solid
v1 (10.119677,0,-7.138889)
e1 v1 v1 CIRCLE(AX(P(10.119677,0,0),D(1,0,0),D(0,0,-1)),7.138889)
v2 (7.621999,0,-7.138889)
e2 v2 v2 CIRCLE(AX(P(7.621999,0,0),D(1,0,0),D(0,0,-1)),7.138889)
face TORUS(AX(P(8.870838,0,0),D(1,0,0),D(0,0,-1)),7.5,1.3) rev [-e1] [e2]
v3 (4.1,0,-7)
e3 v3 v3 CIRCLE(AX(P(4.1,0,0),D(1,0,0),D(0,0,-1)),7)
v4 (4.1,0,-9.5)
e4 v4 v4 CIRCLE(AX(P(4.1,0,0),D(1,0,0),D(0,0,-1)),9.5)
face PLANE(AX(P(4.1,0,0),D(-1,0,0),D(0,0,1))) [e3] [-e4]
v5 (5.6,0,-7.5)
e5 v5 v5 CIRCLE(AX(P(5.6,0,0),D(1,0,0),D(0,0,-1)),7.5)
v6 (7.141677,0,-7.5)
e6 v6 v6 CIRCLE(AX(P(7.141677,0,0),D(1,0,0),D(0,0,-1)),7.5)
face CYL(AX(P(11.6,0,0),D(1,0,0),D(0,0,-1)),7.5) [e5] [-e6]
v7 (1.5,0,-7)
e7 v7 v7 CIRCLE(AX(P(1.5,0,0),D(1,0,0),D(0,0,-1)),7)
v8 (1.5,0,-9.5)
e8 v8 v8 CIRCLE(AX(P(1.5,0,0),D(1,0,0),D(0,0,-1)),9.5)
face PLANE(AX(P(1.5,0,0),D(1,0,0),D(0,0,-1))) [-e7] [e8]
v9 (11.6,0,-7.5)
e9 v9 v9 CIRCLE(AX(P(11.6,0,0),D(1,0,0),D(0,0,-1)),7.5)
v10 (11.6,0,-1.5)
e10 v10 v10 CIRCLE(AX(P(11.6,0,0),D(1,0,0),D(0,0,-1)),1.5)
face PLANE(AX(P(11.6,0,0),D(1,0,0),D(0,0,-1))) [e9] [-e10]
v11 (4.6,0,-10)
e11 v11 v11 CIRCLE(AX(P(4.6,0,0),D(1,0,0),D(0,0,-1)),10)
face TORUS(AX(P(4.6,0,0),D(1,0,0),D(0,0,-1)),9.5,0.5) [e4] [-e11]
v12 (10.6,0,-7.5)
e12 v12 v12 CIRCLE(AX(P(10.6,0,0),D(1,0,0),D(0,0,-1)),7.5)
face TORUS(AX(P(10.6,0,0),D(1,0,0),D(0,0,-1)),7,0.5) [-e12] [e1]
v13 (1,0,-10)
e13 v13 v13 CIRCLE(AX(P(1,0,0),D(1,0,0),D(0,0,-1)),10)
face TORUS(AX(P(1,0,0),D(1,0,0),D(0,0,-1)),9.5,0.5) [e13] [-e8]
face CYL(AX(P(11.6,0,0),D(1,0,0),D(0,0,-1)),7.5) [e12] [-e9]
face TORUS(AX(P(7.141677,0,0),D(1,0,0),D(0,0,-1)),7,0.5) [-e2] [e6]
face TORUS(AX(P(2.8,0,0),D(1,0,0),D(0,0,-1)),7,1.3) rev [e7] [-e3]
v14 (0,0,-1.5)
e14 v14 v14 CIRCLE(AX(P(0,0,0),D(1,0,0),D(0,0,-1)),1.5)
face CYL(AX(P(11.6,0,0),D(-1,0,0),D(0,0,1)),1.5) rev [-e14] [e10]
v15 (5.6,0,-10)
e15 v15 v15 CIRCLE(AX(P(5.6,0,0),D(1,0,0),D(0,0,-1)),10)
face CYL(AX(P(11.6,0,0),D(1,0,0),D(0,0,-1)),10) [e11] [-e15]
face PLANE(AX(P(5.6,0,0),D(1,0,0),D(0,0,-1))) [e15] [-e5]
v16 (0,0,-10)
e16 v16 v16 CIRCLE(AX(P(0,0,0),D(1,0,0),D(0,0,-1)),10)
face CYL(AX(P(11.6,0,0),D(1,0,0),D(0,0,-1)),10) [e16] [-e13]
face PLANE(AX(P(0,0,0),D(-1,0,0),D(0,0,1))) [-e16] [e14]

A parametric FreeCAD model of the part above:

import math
import FreeCAD as App
import Part
import Sketcher

doc = App.newDocument("Part")
body = doc.addObject("PartDesign::Body", "Body")

# Sketch on XZ plane
sketch1 = body.newObject("Sketcher::SketchObject", "Sketch")
sketch1.AttachmentSupport = (doc.getObject("XZ_Plane"), [""])
sketch1.MapMode = "FlatFace"
sketch1.addGeometry(Part.LineSegment(App.Vector(5.6, 0, 0), App.Vector(0, 0, 0)), False)
sketch1.addGeometry(Part.LineSegment(App.Vector(0, 0, 0), App.Vector(0, 10, 0)), False)
sketch1.addGeometry(Part.LineSegment(App.Vector(0, 10, 0), App.Vector(1, 10, 0)), False)
sketch1.addGeometry(Part.ArcOfCircle(Part.Circle(App.Vector(1, 9.5, 0), App.Vector(0, 0, 1), 0.5), math.radians(0), math.radians(90)), False)
sketch1.addGeometry(Part.LineSegment(App.Vector(1.5, 9.5, 0), App.Vector(1.5, 7, 0)), False)
sketch1.addGeometry(Part.ArcOfCircle(Part.Circle(App.Vector(2.8, 7, 0), App.Vector(0, 0, 1), 1.3), math.radians(180), math.radians(360)), False)
sketch1.addGeometry(Part.LineSegment(App.Vector(4.1, 7, 0), App.Vector(4.1, 9.5, 0)), False)
sketch1.addGeometry(Part.ArcOfCircle(Part.Circle(App.Vector(4.6, 9.5, 0), App.Vector(0, 0, 1), 0.5), math.radians(90), math.radians(180)), False)
sketch1.addGeometry(Part.LineSegment(App.Vector(4.6, 10, 0), App.Vector(5.6, 10, 0)), False)
sketch1.addGeometry(Part.LineSegment(App.Vector(5.6, 10, 0), App.Vector(5.6, 0, 0)), False)
sketch1.addConstraint(Sketcher.Constraint("Coincident", 0, 2, 1, 1))
sketch1.addConstraint(Sketcher.Constraint("Coincident", 1, 2, 2, 1))
sketch1.addConstraint(Sketcher.Constraint("Tangent", 2, 2, 3, 2))
sketch1.addConstraint(Sketcher.Constraint("Tangent", 3, 1, 4, 1))
sketch1.addConstraint(Sketcher.Constraint("Tangent", 4, 2, 5, 1))
sketch1.addConstraint(Sketcher.Constraint("Tangent", 5, 2, 6, 1))
sketch1.addConstraint(Sketcher.Constraint("Tangent", 6, 2, 7, 2))
sketch1.addConstraint(Sketcher.Constraint("Tangent", 7, 1, 8, 1))
sketch1.addConstraint(Sketcher.Constraint("Coincident", 8, 2, 9, 1))
sketch1.addConstraint(Sketcher.Constraint("Coincident", 9, 2, 0, 1))
sketch1.addConstraint(Sketcher.Constraint("Horizontal", 0))
sketch1.addConstraint(Sketcher.Constraint("Vertical", 1))
sketch1.addConstraint(Sketcher.Constraint("Horizontal", 2))
sketch1.addConstraint(Sketcher.Constraint("Vertical", 4))
sketch1.addConstraint(Sketcher.Constraint("Vertical", 6))
sketch1.addConstraint(Sketcher.Constraint("Horizontal", 8))
sketch1.addConstraint(Sketcher.Constraint("Vertical", 9))
sketch1.addConstraint(Sketcher.Constraint("Coincident", 0, 2, -1, 1))
sketch1.addConstraint(Sketcher.Constraint("Equal", 3, 7))
sketch1.addConstraint(Sketcher.Constraint("Horizontal", 3, 3, 7, 3))
sketch1.addConstraint(Sketcher.Constraint("Equal", 2, 8))
sketch1.addConstraint(Sketcher.Constraint("Radius", 3, 0.5))
sketch1.addConstraint(Sketcher.Constraint("Radius", 5, 1.3))
sketch1.addConstraint(Sketcher.Constraint("DistanceX", 2, 1, 2, 2, 1.0))
sketch1.addConstraint(Sketcher.Constraint("DistanceY", 1, 1, 1, 2, 10.0))
sketch1.addConstraint(Sketcher.Constraint("DistanceY", 4, 2, 4, 1, 2.5))
revolution = body.newObject("PartDesign::Revolution", "Revolution")
revolution.Profile = sketch1
revolution.ReferenceAxis = (sketch1, ["H_Axis"])
revolution.Angle = 360

# Sketch on XZ plane
sketch2 = body.newObject("Sketcher::SketchObject", "Sketch001")
sketch2.AttachmentSupport = (doc.getObject("XZ_Plane"), [""])
sketch2.MapMode = "FlatFace"
sketch2.addGeometry(Part.LineSegment(App.Vector(11.6, 7.5, 0), App.Vector(11.6, 0, 0)), False)
sketch2.addGeometry(Part.LineSegment(App.Vector(11.6, 0, 0), App.Vector(5.6, 0, 0)), False)
sketch2.addGeometry(Part.LineSegment(App.Vector(5.6, 0, 0), App.Vector(5.6, 7.5, 0)), False)
sketch2.addGeometry(Part.LineSegment(App.Vector(5.6, 7.5, 0), App.Vector(7.141677, 7.5, 0)), False)
sketch2.addGeometry(Part.ArcOfCircle(Part.Circle(App.Vector(7.141677, 7, 0), App.Vector(0, 0, 1), 0.5), math.radians(16.12762), math.radians(90)), False)
sketch2.addGeometry(Part.ArcOfCircle(Part.Circle(App.Vector(8.870838, 7.5, 0), App.Vector(0, 0, 1), 1.3), math.radians(-163.87238), math.radians(-16.12762)), False)
sketch2.addGeometry(Part.ArcOfCircle(Part.Circle(App.Vector(10.6, 7, 0), App.Vector(0, 0, 1), 0.5), math.radians(90), math.radians(163.87238)), False)
sketch2.addGeometry(Part.LineSegment(App.Vector(10.6, 7.5, 0), App.Vector(11.6, 7.5, 0)), False)
sketch2.addConstraint(Sketcher.Constraint("Coincident", 0, 2, 1, 1))
sketch2.addConstraint(Sketcher.Constraint("Coincident", 1, 2, 2, 1))
sketch2.addConstraint(Sketcher.Constraint("Coincident", 2, 2, 3, 1))
sketch2.addConstraint(Sketcher.Constraint("Tangent", 3, 2, 4, 2))
sketch2.addConstraint(Sketcher.Constraint("Tangent", 4, 1, 5, 1))
sketch2.addConstraint(Sketcher.Constraint("Tangent", 5, 2, 6, 2))
sketch2.addConstraint(Sketcher.Constraint("Tangent", 6, 1, 7, 1))
sketch2.addConstraint(Sketcher.Constraint("Coincident", 7, 2, 0, 1))
sketch2.addConstraint(Sketcher.Constraint("Vertical", 0))
sketch2.addConstraint(Sketcher.Constraint("Horizontal", 1))
sketch2.addConstraint(Sketcher.Constraint("Vertical", 2))
sketch2.addConstraint(Sketcher.Constraint("Horizontal", 3))
sketch2.addConstraint(Sketcher.Constraint("Horizontal", 7))
sketch2.addConstraint(Sketcher.Constraint("Equal", 4, 6))
sketch2.addConstraint(Sketcher.Constraint("PointOnObject", 0, 2, -1))
sketch2.addConstraint(Sketcher.Constraint("Horizontal", 4, 3, 6, 3))
sketch2.addConstraint(Sketcher.Constraint("Horizontal", 5, 3, 2, 2))
sketch2.addConstraint(Sketcher.Constraint("Radius", 4, 0.5))
sketch2.addConstraint(Sketcher.Constraint("Radius", 5, 1.3))
sketch2.addConstraint(Sketcher.Constraint("DistanceX", 1, 2, 1, 1, 6.0))
sketch2.addConstraint(Sketcher.Constraint("DistanceX", 7, 1, 7, 2, 1.0))
sketch2.addConstraint(Sketcher.Constraint("DistanceY", 0, 2, 0, 1, 7.5))
sketch2.addConstraint(Sketcher.Constraint("DistanceX", -1, 1, 6, 3, 10.6))
revolution2 = body.newObject("PartDesign::Revolution", "Revolution001")
revolution2.Profile = sketch2
revolution2.ReferenceAxis = (sketch2, ["H_Axis"])
revolution2.Angle = 360

# Sketch on YZ plane
sketch3 = body.newObject("Sketcher::SketchObject", "Sketch002")
sketch3.AttachmentSupport = (doc.getObject("YZ_Plane"), [""])
sketch3.MapMode = "FlatFace"
sketch3.addGeometry(Part.Circle(App.Vector(0, 0, 0), App.Vector(0, 0, 1), 1.5), False)
sketch3.addConstraint(Sketcher.Constraint("Coincident", 0, 3, -1, 1))
sketch3.addConstraint(Sketcher.Constraint("Diameter", 0, 3.0))
pocket1 = body.newObject("PartDesign::Pocket", "Pocket")
pocket1.Profile = sketch3
pocket1.Type = "ThroughAll"
pocket1.Reversed = True

doc.recompute()
